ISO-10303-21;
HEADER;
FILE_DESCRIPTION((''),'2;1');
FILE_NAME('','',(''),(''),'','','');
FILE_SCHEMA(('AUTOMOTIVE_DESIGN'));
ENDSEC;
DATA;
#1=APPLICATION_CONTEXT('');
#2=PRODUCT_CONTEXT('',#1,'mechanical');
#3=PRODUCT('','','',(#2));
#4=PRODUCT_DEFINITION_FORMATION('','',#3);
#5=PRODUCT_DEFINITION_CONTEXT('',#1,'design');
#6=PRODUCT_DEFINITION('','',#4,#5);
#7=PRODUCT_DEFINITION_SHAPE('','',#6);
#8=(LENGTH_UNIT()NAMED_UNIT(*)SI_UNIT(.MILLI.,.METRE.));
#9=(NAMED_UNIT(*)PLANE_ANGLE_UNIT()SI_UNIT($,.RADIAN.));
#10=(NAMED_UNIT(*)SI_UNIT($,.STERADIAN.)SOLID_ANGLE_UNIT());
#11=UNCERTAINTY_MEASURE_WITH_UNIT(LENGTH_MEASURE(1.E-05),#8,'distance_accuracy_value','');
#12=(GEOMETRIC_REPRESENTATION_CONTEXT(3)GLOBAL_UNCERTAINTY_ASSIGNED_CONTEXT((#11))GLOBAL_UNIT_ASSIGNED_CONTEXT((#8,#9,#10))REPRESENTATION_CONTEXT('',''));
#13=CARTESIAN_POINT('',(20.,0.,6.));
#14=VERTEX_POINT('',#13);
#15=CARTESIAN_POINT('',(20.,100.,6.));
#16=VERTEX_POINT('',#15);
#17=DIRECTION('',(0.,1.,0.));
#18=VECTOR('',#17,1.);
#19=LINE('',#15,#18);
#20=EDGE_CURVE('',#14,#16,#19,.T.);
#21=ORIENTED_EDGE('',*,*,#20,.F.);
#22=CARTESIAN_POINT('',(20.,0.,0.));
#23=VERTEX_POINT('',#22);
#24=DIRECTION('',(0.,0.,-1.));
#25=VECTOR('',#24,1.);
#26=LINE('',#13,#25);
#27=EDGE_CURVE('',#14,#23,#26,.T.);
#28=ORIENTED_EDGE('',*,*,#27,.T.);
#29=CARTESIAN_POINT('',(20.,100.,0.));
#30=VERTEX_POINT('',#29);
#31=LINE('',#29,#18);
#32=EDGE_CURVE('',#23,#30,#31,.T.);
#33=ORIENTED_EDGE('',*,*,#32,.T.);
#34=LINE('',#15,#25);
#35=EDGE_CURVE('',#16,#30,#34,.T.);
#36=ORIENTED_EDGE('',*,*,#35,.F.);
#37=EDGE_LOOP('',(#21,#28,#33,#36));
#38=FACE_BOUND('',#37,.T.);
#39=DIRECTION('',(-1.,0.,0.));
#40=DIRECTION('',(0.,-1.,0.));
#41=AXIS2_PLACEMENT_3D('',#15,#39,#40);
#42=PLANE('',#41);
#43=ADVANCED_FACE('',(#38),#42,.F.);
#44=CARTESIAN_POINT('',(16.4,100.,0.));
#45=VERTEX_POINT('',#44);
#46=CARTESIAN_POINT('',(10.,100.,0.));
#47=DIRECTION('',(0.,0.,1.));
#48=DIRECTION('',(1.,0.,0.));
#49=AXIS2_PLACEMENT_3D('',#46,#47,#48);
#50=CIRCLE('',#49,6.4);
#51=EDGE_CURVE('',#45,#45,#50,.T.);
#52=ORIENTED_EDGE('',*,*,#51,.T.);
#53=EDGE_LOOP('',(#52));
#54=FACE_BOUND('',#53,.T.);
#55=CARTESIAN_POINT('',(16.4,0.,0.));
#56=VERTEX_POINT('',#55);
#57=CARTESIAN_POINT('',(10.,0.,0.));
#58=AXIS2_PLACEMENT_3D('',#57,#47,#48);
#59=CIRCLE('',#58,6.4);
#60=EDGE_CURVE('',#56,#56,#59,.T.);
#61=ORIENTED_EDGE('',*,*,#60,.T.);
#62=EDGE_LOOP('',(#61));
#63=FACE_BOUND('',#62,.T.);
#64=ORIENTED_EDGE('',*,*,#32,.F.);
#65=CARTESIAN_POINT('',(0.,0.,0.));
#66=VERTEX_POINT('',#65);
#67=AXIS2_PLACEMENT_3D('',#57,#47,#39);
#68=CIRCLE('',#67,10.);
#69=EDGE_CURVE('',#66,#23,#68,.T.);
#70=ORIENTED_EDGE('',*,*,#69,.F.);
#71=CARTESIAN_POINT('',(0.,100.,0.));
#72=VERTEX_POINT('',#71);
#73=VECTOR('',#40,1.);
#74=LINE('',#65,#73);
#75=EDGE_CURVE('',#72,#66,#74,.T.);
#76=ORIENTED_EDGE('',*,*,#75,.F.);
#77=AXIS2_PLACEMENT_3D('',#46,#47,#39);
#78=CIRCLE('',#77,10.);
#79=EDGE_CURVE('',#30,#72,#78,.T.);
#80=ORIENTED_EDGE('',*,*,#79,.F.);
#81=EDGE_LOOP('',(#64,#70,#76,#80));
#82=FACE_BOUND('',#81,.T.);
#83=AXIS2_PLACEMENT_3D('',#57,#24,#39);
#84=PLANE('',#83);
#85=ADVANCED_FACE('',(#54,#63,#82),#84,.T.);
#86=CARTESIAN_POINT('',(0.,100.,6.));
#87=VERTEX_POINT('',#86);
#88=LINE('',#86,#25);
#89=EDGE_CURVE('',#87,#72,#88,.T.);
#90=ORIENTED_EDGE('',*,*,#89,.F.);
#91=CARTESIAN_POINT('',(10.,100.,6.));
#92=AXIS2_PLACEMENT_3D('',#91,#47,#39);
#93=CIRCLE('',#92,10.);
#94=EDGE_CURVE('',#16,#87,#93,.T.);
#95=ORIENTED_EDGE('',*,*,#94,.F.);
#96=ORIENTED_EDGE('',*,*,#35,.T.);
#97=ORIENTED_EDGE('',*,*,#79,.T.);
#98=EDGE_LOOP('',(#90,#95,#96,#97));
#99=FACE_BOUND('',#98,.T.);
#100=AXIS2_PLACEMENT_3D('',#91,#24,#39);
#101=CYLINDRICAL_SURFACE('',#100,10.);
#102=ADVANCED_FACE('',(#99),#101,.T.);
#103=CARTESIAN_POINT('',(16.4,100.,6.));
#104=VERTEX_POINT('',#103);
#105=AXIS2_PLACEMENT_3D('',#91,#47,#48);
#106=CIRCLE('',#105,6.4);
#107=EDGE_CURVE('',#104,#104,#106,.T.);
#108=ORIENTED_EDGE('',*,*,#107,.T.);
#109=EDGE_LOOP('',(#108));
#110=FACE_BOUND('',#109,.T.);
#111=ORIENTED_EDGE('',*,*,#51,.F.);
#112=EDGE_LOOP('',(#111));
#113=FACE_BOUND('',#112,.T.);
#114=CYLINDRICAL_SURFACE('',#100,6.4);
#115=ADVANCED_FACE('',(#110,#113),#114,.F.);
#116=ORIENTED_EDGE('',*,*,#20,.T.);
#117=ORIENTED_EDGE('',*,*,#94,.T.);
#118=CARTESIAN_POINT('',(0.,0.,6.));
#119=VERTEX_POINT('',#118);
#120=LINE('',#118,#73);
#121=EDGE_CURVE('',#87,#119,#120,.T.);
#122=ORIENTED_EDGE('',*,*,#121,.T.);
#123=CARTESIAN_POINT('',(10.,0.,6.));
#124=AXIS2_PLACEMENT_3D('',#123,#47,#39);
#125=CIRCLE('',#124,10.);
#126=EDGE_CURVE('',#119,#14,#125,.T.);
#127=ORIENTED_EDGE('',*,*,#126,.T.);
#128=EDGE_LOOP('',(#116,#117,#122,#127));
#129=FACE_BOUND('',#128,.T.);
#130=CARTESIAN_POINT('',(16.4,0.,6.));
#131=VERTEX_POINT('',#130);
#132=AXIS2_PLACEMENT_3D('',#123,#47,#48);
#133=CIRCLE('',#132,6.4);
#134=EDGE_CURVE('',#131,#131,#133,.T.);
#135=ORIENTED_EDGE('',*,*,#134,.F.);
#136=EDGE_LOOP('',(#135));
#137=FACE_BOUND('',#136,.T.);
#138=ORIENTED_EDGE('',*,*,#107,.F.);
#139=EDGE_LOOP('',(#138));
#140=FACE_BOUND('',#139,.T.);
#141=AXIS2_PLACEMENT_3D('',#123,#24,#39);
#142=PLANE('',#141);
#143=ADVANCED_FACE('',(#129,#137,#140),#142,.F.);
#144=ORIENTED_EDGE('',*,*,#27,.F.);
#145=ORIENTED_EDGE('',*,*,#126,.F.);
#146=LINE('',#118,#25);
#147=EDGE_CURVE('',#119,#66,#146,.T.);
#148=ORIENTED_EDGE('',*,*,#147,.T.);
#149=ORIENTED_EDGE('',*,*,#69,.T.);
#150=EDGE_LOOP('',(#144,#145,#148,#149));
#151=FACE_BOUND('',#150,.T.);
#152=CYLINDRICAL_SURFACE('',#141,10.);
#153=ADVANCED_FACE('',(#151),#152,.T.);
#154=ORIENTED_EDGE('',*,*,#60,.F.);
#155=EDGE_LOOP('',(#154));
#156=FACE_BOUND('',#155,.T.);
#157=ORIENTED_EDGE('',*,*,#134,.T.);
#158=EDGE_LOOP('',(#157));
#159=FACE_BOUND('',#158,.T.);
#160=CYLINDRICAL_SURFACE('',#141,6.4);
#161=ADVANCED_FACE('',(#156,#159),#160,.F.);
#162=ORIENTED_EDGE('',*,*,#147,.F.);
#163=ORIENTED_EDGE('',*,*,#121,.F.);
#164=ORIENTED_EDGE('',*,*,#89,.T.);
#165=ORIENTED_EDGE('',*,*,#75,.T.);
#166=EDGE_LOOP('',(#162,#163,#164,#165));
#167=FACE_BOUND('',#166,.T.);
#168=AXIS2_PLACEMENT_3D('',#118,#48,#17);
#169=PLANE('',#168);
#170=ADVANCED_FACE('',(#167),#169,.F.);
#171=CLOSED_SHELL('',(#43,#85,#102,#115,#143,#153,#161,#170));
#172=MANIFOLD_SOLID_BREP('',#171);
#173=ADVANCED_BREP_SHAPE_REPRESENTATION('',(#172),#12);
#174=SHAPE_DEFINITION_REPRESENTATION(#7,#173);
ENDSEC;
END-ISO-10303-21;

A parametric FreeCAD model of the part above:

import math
import FreeCAD as App
import Part
import Sketcher
from FreeCAD import Vector

doc = App.newDocument("Part")
params = doc.addObject("Spreadsheet::Sheet", "Params")
for row, (alias, value) in enumerate([
    ("sketch1_radius", "10 mm"),
    ("sketch1_diameter", "12.8 mm"),
    ("sketch1_height", "100 mm"),
    ("pad1_length", "6 mm"),
], start=1):
    params.set(f"A{row}", alias)
    params.set(f"B{row}", "=" + value)
    params.setAlias(f"B{row}", alias)

body = doc.addObject("PartDesign::Body", "Body")

sketch1 = body.newObject("Sketcher::SketchObject", "Sketch")
sketch1.AttachmentSupport = (doc.getObject("XY_Plane"), [""])
sketch1.MapMode = "FlatFace"
sketch1.addGeometry([
    Part.LineSegment(Vector(0, 100, 0), Vector(0, 0, 0)),
    Part.ArcOfCircle(Part.Circle(Vector(10, 0, 0), Vector(0, 0, 1), 10), math.radians(180), math.radians(360)),
    Part.LineSegment(Vector(20, 0, 0), Vector(20, 100, 0)),
    Part.ArcOfCircle(Part.Circle(Vector(10, 100, 0), Vector(0, 0, 1), 10), math.radians(0), math.radians(180)),
    Part.Circle(Vector(10, 0, 0), Vector(0, 0, 1), 6),
    Part.Circle(Vector(10, 100, 0), Vector(0, 0, 1), 6),
], False)
sketch1.addConstraint([
    Sketcher.Constraint("Tangent", 0, 2, 1, 1),
    Sketcher.Constraint("Tangent", 1, 2, 2, 1),
    Sketcher.Constraint("Tangent", 2, 2, 3, 1),
    Sketcher.Constraint("Tangent", 3, 2, 0, 1),
    Sketcher.Constraint("Vertical", 0),
    Sketcher.Constraint("Vertical", 2),
    Sketcher.Constraint("Coincident", 0, 2, -1, 1),
    Sketcher.Constraint("Coincident", 4, 3, 1, 3),
    Sketcher.Constraint("Coincident", 5, 3, 3, 3),
    Sketcher.Constraint("Equal", 4, 5),
    Sketcher.Constraint("Radius", 1, 10.0),
    Sketcher.Constraint("Diameter", 4, 12.8),
    Sketcher.Constraint("DistanceY", 0, 2, 0, 1, 100.0),
])
sketch1.setExpression("Constraints[10]", "Params.sketch1_radius")
sketch1.setExpression("Constraints[11]", "Params.sketch1_diameter")
sketch1.setExpression("Constraints[12]", "Params.sketch1_height")
pad1 = body.newObject("PartDesign::Pad", "Pad")
pad1.Profile = sketch1
pad1.setExpression("Length", "Params.pad1_length")

doc.recompute()
